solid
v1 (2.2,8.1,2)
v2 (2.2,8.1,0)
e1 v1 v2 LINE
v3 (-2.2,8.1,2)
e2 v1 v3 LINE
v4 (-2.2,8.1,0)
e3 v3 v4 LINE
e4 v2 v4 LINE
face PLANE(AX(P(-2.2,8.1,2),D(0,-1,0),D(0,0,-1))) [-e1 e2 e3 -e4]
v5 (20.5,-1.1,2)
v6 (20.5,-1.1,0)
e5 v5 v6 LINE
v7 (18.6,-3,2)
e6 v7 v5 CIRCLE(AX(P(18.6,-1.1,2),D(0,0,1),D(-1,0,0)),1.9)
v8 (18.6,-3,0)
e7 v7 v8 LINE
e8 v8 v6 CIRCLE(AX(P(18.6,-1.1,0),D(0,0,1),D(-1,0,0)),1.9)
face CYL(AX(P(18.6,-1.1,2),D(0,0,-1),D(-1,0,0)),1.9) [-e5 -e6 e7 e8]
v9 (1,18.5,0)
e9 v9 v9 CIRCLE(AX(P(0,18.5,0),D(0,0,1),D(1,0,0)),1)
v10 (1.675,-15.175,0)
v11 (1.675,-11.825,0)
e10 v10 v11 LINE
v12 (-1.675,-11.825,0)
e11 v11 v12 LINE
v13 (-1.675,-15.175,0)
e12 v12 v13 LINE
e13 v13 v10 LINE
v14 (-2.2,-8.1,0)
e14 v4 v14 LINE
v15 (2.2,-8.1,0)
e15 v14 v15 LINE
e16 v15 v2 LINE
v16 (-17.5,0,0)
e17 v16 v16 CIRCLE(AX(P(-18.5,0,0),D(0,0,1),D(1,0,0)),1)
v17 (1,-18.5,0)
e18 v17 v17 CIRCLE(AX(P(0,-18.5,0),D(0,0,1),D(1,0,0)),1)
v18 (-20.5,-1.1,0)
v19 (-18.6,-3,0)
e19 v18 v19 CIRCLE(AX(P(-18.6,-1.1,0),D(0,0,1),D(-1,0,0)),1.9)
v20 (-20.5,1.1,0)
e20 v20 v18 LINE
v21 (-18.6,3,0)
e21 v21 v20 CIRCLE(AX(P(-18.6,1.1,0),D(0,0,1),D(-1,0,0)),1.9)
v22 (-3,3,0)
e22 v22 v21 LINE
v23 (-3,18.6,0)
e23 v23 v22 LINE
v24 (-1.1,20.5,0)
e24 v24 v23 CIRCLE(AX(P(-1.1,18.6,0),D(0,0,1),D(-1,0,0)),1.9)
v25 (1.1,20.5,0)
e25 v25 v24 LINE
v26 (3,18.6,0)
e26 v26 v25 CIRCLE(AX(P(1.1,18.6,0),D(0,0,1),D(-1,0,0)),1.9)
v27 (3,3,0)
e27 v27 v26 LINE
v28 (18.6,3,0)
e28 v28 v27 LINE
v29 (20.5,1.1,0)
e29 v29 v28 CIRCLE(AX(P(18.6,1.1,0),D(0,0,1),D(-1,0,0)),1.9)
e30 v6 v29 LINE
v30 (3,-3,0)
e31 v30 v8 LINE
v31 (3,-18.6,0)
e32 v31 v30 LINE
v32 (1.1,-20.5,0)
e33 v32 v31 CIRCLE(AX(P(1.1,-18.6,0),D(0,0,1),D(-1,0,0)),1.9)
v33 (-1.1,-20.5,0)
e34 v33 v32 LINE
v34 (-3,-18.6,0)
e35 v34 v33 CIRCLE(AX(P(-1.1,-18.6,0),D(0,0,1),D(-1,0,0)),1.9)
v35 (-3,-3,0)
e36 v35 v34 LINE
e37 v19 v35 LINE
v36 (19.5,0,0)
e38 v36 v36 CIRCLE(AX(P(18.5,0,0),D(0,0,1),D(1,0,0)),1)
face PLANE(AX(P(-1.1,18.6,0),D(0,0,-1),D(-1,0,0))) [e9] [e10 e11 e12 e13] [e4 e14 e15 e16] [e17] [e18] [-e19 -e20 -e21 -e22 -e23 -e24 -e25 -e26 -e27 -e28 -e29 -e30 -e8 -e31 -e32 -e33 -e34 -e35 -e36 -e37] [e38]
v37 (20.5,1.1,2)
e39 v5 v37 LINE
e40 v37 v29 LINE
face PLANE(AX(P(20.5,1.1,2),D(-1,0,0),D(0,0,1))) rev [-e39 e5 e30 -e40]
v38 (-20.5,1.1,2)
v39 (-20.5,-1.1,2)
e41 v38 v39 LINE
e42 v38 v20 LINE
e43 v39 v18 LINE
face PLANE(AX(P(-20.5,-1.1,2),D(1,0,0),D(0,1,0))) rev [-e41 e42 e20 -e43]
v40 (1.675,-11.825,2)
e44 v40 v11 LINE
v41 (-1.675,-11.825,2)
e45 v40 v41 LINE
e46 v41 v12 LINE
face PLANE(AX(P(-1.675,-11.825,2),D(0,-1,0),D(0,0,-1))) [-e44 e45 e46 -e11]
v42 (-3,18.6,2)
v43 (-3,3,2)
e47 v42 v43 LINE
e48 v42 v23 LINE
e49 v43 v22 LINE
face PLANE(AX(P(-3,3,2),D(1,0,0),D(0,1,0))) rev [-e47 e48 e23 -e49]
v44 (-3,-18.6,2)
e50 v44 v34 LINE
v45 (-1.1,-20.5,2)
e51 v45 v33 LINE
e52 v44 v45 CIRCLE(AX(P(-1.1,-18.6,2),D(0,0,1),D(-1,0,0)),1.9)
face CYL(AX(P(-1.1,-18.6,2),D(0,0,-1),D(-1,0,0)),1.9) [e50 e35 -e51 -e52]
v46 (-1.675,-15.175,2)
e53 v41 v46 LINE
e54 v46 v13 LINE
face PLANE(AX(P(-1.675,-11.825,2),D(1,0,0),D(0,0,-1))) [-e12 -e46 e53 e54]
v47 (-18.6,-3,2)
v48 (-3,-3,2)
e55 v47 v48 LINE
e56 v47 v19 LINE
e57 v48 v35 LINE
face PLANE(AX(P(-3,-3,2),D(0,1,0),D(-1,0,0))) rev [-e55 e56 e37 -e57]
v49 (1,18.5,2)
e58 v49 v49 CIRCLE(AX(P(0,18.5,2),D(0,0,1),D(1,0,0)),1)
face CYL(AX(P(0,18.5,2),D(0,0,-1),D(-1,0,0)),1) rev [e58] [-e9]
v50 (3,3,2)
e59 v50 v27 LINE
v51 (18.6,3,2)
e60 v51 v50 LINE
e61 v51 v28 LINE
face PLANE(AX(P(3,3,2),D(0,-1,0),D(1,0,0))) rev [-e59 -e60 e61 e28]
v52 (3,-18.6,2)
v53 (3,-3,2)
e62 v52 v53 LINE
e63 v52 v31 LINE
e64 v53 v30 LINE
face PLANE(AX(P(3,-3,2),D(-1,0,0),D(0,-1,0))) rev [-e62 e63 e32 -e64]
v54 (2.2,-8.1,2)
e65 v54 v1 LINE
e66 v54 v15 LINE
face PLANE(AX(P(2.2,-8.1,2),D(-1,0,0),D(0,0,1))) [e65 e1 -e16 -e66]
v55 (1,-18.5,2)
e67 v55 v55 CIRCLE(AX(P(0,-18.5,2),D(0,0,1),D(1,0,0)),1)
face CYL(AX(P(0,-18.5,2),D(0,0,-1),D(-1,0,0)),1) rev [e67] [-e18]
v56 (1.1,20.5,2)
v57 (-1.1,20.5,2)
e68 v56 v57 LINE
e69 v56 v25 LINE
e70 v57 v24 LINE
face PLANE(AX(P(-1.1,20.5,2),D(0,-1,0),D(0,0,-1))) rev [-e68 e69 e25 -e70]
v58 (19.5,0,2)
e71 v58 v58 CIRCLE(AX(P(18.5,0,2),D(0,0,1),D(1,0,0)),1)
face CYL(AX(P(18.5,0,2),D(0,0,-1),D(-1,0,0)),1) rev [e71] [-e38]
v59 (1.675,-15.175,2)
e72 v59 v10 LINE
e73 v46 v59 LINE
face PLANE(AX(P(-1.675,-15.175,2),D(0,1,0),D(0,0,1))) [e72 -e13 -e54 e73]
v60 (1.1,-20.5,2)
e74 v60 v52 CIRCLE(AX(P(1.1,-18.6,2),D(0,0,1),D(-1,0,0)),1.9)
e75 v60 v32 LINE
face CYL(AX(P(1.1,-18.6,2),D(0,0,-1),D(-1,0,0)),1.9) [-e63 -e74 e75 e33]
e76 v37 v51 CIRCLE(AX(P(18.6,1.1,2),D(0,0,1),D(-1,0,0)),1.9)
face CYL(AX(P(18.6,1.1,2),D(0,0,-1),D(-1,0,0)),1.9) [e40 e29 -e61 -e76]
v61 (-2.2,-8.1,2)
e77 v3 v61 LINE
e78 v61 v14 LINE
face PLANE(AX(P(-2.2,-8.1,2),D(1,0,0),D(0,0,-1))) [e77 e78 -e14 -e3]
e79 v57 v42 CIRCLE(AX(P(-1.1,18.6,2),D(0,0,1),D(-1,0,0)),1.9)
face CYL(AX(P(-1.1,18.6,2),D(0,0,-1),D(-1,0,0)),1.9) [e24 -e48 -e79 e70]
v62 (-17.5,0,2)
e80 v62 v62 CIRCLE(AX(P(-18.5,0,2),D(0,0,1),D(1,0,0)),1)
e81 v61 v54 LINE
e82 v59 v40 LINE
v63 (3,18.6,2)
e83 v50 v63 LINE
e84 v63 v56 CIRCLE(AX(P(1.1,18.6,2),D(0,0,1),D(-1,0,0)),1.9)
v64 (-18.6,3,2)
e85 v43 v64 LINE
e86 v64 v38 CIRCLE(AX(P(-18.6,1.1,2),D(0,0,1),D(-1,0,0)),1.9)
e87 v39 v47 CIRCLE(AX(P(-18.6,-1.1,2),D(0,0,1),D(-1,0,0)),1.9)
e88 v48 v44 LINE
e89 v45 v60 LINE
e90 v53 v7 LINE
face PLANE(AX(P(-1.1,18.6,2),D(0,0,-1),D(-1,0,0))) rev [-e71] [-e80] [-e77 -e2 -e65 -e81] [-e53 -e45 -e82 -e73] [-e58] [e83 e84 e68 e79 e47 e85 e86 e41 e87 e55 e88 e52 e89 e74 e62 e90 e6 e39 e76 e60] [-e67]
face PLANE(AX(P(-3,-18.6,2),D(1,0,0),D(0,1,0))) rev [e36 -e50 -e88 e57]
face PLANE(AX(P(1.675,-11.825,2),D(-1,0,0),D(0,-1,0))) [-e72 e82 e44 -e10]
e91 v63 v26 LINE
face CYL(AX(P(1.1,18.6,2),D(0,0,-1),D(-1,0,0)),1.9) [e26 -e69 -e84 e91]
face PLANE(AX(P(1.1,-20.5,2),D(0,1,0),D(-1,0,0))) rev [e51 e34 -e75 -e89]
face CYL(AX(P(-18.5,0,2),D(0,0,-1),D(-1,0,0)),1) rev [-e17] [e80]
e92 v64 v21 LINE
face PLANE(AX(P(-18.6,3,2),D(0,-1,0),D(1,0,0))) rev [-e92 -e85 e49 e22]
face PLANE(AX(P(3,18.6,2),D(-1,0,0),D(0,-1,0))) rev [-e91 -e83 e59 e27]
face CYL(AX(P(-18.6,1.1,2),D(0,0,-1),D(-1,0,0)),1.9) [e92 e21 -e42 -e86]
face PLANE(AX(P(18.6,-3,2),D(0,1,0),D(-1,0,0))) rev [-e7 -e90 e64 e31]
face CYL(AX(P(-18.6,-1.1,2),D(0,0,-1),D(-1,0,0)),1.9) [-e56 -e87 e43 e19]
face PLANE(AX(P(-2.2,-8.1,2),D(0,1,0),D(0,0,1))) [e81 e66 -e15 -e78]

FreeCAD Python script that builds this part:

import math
import FreeCAD as App
import Part
import Sketcher

V = App.Vector

doc = App.newDocument("Part")
body = doc.addObject("PartDesign::Body", "Body")

sketch1 = body.newObject("Sketcher::SketchObject", "Sketch")
sketch1.AttachmentSupport = (doc.getObject("XY_Plane"), [""])
sketch1.MapMode = "FlatFace"
sketch1.addGeometry([
    Part.LineSegment(V(-3, 18.6, 0), V(-3, 3, 0)),
    Part.LineSegment(V(-3, 3, 0), V(-18.6, 3, 0)),
    Part.ArcOfCircle(Part.Circle(V(-18.6, 1.1, 0), V(0, 0, 1), 1.9), math.radians(90), math.radians(180)),
    Part.LineSegment(V(-20.5, 1.1, 0), V(-20.5, -1.1, 0)),
    Part.ArcOfCircle(Part.Circle(V(-18.6, -1.1, 0), V(0, 0, 1), 1.9), math.radians(-180), math.radians(-90)),
    Part.LineSegment(V(-18.6, -3, 0), V(-3, -3, 0)),
    Part.LineSegment(V(-3, -3, 0), V(-3, -18.6, 0)),
    Part.ArcOfCircle(Part.Circle(V(-1.1, -18.6, 0), V(0, 0, 1), 1.9), math.radians(-180), math.radians(-90)),
    Part.LineSegment(V(-1.1, -20.5, 0), V(1.1, -20.5, 0)),
    Part.ArcOfCircle(Part.Circle(V(1.1, -18.6, 0), V(0, 0, 1), 1.9), math.radians(-90), math.radians(0)),
    Part.LineSegment(V(3, -18.6, 0), V(3, -3, 0)),
    Part.LineSegment(V(3, -3, 0), V(18.6, -3, 0)),
    Part.ArcOfCircle(Part.Circle(V(18.6, -1.1, 0), V(0, 0, 1), 1.9), math.radians(-90), math.radians(0)),
    Part.LineSegment(V(20.5, -1.1, 0), V(20.5, 1.1, 0)),
    Part.ArcOfCircle(Part.Circle(V(18.6, 1.1, 0), V(0, 0, 1), 1.9), math.radians(0), math.radians(90)),
    Part.LineSegment(V(18.6, 3, 0), V(3, 3, 0)),
    Part.LineSegment(V(3, 3, 0), V(3, 18.6, 0)),
    Part.ArcOfCircle(Part.Circle(V(1.1, 18.6, 0), V(0, 0, 1), 1.9), math.radians(0), math.radians(90)),
    Part.LineSegment(V(1.1, 20.5, 0), V(-1.1, 20.5, 0)),
    Part.ArcOfCircle(Part.Circle(V(-1.1, 18.6, 0), V(0, 0, 1), 1.9), math.radians(90), math.radians(180)),
    Part.Circle(V(0, -18.5, 0), V(0, 0, 1), 1),
    Part.LineSegment(V(-1.7, -15.2, 0), V(-1.7, -11.8, 0)),
    Part.LineSegment(V(-1.7, -11.8, 0), V(1.7, -11.8, 0)),
    Part.LineSegment(V(1.7, -11.8, 0), V(1.7, -15.2, 0)),
    Part.LineSegment(V(1.7, -15.2, 0), V(-1.7, -15.2, 0)),
    Part.Circle(V(18.5, 0, 0), V(0, 0, 1), 1),
    Part.LineSegment(V(-2.2, -8.1, 0), V(-2.2, 8.1, 0)),
    Part.LineSegment(V(-2.2, 8.1, 0), V(2.2, 8.1, 0)),
    Part.LineSegment(V(2.2, 8.1, 0), V(2.2, -8.1, 0)),
    Part.LineSegment(V(2.2, -8.1, 0), V(-2.2, -8.1, 0)),
    Part.Circle(V(-18.5, 0, 0), V(0, 0, 1), 1),
    Part.Circle(V(0, 18.5, 0), V(0, 0, 1), 1),
], False)
sketch1.addConstraint([
    Sketcher.Constraint("Coincident", 0, 2, 1, 1),
    Sketcher.Constraint("Tangent", 1, 2, 2, 1),
    Sketcher.Constraint("Tangent", 2, 2, 3, 1),
    Sketcher.Constraint("Tangent", 3, 2, 4, 1),
    Sketcher.Constraint("Tangent", 4, 2, 5, 1),
    Sketcher.Constraint("Coincident", 5, 2, 6, 1),
    Sketcher.Constraint("Tangent", 6, 2, 7, 1),
    Sketcher.Constraint("Tangent", 7, 2, 8, 1),
    Sketcher.Constraint("Tangent", 8, 2, 9, 1),
    Sketcher.Constraint("Tangent", 9, 2, 10, 1),
    Sketcher.Constraint("Coincident", 10, 2, 11, 1),
    Sketcher.Constraint("Tangent", 11, 2, 12, 1),
    Sketcher.Constraint("Tangent", 12, 2, 13, 1),
    Sketcher.Constraint("Tangent", 13, 2, 14, 1),
    Sketcher.Constraint("Tangent", 14, 2, 15, 1),
    Sketcher.Constraint("Coincident", 15, 2, 16, 1),
    Sketcher.Constraint("Tangent", 16, 2, 17, 1),
    Sketcher.Constraint("Tangent", 17, 2, 18, 1),
    Sketcher.Constraint("Tangent", 18, 2, 19, 1),
    Sketcher.Constraint("Tangent", 19, 2, 0, 1),
    Sketcher.Constraint("Coincident", 21, 2, 22, 1),
    Sketcher.Constraint("Coincident", 22, 2, 23, 1),
    Sketcher.Constraint("Coincident", 23, 2, 24, 1),
    Sketcher.Constraint("Coincident", 24, 2, 21, 1),
    Sketcher.Constraint("Coincident", 26, 2, 27, 1),
    Sketcher.Constraint("Coincident", 27, 2, 28, 1),
    Sketcher.Constraint("Coincident", 28, 2, 29, 1),
    Sketcher.Constraint("Coincident", 29, 2, 26, 1),
    Sketcher.Constraint("Vertical", 0),
    Sketcher.Constraint("Horizontal", 1),
    Sketcher.Constraint("Vertical", 3),
    Sketcher.Constraint("Horizontal", 5),
    Sketcher.Constraint("Vertical", 6),
    Sketcher.Constraint("Horizontal", 8),
    Sketcher.Constraint("Vertical", 10),
    Sketcher.Constraint("Horizontal", 11),
    Sketcher.Constraint("Vertical", 13),
    Sketcher.Constraint("Horizontal", 15),
    Sketcher.Constraint("Vertical", 16),
    Sketcher.Constraint("Horizontal", 18),
    Sketcher.Constraint("Vertical", 21),
    Sketcher.Constraint("Horizontal", 22),
    Sketcher.Constraint("Vertical", 23),
    Sketcher.Constraint("Horizontal", 24),
    Sketcher.Constraint("Vertical", 26),
    Sketcher.Constraint("Horizontal", 27),
    Sketcher.Constraint("Vertical", 28),
    Sketcher.Constraint("Horizontal", 29),
    Sketcher.Constraint("Equal", 2, 4),
    Sketcher.Constraint("Equal", 4, 7),
    Sketcher.Constraint("Equal", 7, 9),
    Sketcher.Constraint("Equal", 9, 12),
    Sketcher.Constraint("Equal", 12, 14),
    Sketcher.Constraint("Equal", 14, 17),
    Sketcher.Constraint("Equal", 17, 19),
    Sketcher.Constraint("Equal", 20, 25),
    Sketcher.Constraint("Equal", 25, 30),
    Sketcher.Constraint("Equal", 30, 31),
    Sketcher.Constraint("Symmetric", 2, 3, 12, 3, -1, 1),
    Sketcher.Constraint("Symmetric", 7, 3, 17, 3, -1, 1),
    Sketcher.Constraint("Symmetric", 25, 3, 30, 3, -1, 1),
    Sketcher.Constraint("Symmetric", 20, 3, 31, 3, -1, 1),
    Sketcher.Constraint("Symmetric", 26, 2, 28, 2, -1, 1),
    Sketcher.Constraint("Symmetric", 5, 2, 10, 2, -2),
    Sketcher.Constraint("Symmetric", 0, 2, 15, 2, -2),
    Sketcher.Constraint("PointOnObject", 20, 3, -2),
    Sketcher.Constraint("PointOnObject", 25, 3, -1),
    Sketcher.Constraint("Equal", 15, 0),
    Sketcher.Constraint("Equal", 18, 3),
    Sketcher.Constraint("Equal", 24, 21),
    Sketcher.Constraint("Diameter", 20, 2.0),
    Sketcher.Constraint("Radius", 2, 1.9),
    Sketcher.Constraint("DistanceX", 1, 2, 1, 1, 15.6),
    Sketcher.Constraint("DistanceX", 8, 1, 8, 2, 2.2),
    Sketcher.Constraint("DistanceX", 27, 1, 27, 2, 4.4),
    Sketcher.Constraint("DistanceY", 26, 1, 26, 2, 16.2),
    Sketcher.Constraint("DistanceX", 2, 2, 30, 3, 2.0),
    Sketcher.Constraint("DistanceY", 7, 2, 20, 3, 2.0),
    Sketcher.Constraint("DistanceX", 22, 1, 22, 2, 3.35),
    Sketcher.Constraint("DistanceX", 21, 2, -1, 1, 1.675),
    Sketcher.Constraint("DistanceY", 21, 2, -1, 1, 11.825),
])
pad1 = body.newObject("PartDesign::Pad", "Pad")
pad1.Profile = sketch1
pad1.Length = 2

doc.recompute()
